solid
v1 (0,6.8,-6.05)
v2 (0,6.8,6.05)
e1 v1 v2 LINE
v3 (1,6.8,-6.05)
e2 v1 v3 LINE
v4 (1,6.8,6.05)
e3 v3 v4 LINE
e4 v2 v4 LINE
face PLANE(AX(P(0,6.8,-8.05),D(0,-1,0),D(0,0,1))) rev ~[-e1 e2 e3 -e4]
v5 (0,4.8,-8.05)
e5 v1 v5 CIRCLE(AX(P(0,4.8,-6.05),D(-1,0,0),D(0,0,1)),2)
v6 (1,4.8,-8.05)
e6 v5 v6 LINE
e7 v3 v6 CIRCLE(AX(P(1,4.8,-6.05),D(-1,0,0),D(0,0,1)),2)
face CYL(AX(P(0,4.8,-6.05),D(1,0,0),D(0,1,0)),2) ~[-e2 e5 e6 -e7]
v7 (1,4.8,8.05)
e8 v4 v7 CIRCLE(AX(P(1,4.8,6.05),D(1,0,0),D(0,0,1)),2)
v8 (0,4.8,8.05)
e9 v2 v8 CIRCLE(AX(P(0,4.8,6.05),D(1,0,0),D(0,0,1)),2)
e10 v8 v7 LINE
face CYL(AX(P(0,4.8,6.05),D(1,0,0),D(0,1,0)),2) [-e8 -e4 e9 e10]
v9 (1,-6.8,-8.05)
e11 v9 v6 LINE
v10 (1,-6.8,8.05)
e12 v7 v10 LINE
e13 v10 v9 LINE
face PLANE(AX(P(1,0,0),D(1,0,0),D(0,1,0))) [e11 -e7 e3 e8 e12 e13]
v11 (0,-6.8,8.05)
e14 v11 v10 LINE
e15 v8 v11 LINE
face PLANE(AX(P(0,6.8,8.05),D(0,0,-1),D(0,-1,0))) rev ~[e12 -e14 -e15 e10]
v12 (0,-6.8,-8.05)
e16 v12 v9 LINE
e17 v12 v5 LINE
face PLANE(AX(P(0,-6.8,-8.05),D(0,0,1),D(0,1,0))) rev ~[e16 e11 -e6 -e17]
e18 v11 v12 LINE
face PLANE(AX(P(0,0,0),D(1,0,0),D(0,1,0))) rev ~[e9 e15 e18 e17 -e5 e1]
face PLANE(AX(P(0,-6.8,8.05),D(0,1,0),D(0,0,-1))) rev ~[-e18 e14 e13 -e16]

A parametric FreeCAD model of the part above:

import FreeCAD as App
import Part
import Sketcher

V = App.Vector
Q = App.Units.Quantity


def edges_at(feature, points):
    """Names of the edges that pass closest to the given points."""
    edges = feature.Shape.Edges
    near = lambda p: min(range(len(edges)), key=lambda i: edges[i].distToShape(Part.Vertex(*p))[0])
    return sorted({f"Edge{near(p) + 1}" for p in points})

doc = App.newDocument("Part")
body = doc.addObject("PartDesign::Body", "Body")

sketch1 = body.newObject("Sketcher::SketchObject", "Sketch")
sketch1.AttachmentSupport = (doc.getObject("YZ_Plane"), [""])
sketch1.MapMode = "FlatFace"
sketch1.addGeometry(Part.LineSegment(V(7, -8, 0), V(7, 8, 0)), False)
sketch1.addGeometry(Part.LineSegment(V(7, 8, 0), V(-7, 8, 0)), False)
sketch1.addGeometry(Part.LineSegment(V(-7, 8, 0), V(-7, -8, 0)), False)
sketch1.addGeometry(Part.LineSegment(V(-7, -8, 0), V(7, -8, 0)), False)
sketch1.addConstraint(Sketcher.Constraint("Coincident", 0, 2, 1, 1))
sketch1.addConstraint(Sketcher.Constraint("Coincident", 1, 2, 2, 1))
sketch1.addConstraint(Sketcher.Constraint("Coincident", 2, 2, 3, 1))
sketch1.addConstraint(Sketcher.Constraint("Coincident", 3, 2, 0, 1))
sketch1.addConstraint(Sketcher.Constraint("Vertical", 0))
sketch1.addConstraint(Sketcher.Constraint("Horizontal", 1))
sketch1.addConstraint(Sketcher.Constraint("Vertical", 2))
sketch1.addConstraint(Sketcher.Constraint("Horizontal", 3))
sketch1.addConstraint(Sketcher.Constraint("Symmetric", 0, 2, 2, 2, -1, 1))
sketch1.addConstraint(Sketcher.Constraint("DistanceX", 1, 2, 1, 1, Q("13.6 mm")))
sketch1.addConstraint(Sketcher.Constraint("DistanceY", 0, 1, 0, 2, Q("16.1 mm")))
pad1 = body.newObject("PartDesign::Pad", "Pad")
pad1.Profile = sketch1
pad1.Length = 1
doc.recompute()

fillet = body.newObject("PartDesign::Fillet", "Fillet")
fillet.Base = (pad1, edges_at(pad1, [(0.5, 6.8, 8.05), (0.5, 6.8, -8.05)]))
fillet.Radius = 2

doc.recompute()
